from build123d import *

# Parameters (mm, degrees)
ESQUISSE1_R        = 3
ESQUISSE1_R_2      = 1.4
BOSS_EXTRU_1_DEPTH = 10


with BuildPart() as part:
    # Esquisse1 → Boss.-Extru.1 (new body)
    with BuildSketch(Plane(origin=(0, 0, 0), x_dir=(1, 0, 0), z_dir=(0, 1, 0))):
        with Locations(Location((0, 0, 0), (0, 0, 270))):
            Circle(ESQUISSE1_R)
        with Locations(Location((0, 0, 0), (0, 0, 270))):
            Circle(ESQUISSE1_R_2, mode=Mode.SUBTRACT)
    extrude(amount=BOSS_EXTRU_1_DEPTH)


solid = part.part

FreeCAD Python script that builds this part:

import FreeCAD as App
import Part
import Sketcher

V = App.Vector

doc = App.newDocument("Part")
body = doc.addObject("PartDesign::Body", "Body")

sketch1 = doc.addObject("Sketcher::SketchObject", "Sketch")
body.addObject(sketch1)
sketch1.AttachmentSupport = (doc.XZ_Plane, [""])
sketch1.MapMode = "FlatFace"
sketch1.addGeometry(Part.Circle(V(0, 0, 0), V(0, 0, 1), 3), False)
sketch1.addGeometry(Part.Circle(V(0, 0, 0), V(0, 0, 1), 1.4), False)
sketch1.addConstraint(Sketcher.Constraint("Coincident", 0, 3, -1, 1))
sketch1.addConstraint(Sketcher.Constraint("Coincident", 1, 3, -1, 1))
sketch1.addConstraint(Sketcher.Constraint("Diameter", 0, 6.0))
sketch1.addConstraint(Sketcher.Constraint("Diameter", 1, 2.8))
pad1 = doc.addObject("PartDesign::Pad", "Pad")
body.addObject(pad1)
pad1.Profile = sketch1
pad1.Length = 10
pad1.Reversed = True

doc.recompute()
